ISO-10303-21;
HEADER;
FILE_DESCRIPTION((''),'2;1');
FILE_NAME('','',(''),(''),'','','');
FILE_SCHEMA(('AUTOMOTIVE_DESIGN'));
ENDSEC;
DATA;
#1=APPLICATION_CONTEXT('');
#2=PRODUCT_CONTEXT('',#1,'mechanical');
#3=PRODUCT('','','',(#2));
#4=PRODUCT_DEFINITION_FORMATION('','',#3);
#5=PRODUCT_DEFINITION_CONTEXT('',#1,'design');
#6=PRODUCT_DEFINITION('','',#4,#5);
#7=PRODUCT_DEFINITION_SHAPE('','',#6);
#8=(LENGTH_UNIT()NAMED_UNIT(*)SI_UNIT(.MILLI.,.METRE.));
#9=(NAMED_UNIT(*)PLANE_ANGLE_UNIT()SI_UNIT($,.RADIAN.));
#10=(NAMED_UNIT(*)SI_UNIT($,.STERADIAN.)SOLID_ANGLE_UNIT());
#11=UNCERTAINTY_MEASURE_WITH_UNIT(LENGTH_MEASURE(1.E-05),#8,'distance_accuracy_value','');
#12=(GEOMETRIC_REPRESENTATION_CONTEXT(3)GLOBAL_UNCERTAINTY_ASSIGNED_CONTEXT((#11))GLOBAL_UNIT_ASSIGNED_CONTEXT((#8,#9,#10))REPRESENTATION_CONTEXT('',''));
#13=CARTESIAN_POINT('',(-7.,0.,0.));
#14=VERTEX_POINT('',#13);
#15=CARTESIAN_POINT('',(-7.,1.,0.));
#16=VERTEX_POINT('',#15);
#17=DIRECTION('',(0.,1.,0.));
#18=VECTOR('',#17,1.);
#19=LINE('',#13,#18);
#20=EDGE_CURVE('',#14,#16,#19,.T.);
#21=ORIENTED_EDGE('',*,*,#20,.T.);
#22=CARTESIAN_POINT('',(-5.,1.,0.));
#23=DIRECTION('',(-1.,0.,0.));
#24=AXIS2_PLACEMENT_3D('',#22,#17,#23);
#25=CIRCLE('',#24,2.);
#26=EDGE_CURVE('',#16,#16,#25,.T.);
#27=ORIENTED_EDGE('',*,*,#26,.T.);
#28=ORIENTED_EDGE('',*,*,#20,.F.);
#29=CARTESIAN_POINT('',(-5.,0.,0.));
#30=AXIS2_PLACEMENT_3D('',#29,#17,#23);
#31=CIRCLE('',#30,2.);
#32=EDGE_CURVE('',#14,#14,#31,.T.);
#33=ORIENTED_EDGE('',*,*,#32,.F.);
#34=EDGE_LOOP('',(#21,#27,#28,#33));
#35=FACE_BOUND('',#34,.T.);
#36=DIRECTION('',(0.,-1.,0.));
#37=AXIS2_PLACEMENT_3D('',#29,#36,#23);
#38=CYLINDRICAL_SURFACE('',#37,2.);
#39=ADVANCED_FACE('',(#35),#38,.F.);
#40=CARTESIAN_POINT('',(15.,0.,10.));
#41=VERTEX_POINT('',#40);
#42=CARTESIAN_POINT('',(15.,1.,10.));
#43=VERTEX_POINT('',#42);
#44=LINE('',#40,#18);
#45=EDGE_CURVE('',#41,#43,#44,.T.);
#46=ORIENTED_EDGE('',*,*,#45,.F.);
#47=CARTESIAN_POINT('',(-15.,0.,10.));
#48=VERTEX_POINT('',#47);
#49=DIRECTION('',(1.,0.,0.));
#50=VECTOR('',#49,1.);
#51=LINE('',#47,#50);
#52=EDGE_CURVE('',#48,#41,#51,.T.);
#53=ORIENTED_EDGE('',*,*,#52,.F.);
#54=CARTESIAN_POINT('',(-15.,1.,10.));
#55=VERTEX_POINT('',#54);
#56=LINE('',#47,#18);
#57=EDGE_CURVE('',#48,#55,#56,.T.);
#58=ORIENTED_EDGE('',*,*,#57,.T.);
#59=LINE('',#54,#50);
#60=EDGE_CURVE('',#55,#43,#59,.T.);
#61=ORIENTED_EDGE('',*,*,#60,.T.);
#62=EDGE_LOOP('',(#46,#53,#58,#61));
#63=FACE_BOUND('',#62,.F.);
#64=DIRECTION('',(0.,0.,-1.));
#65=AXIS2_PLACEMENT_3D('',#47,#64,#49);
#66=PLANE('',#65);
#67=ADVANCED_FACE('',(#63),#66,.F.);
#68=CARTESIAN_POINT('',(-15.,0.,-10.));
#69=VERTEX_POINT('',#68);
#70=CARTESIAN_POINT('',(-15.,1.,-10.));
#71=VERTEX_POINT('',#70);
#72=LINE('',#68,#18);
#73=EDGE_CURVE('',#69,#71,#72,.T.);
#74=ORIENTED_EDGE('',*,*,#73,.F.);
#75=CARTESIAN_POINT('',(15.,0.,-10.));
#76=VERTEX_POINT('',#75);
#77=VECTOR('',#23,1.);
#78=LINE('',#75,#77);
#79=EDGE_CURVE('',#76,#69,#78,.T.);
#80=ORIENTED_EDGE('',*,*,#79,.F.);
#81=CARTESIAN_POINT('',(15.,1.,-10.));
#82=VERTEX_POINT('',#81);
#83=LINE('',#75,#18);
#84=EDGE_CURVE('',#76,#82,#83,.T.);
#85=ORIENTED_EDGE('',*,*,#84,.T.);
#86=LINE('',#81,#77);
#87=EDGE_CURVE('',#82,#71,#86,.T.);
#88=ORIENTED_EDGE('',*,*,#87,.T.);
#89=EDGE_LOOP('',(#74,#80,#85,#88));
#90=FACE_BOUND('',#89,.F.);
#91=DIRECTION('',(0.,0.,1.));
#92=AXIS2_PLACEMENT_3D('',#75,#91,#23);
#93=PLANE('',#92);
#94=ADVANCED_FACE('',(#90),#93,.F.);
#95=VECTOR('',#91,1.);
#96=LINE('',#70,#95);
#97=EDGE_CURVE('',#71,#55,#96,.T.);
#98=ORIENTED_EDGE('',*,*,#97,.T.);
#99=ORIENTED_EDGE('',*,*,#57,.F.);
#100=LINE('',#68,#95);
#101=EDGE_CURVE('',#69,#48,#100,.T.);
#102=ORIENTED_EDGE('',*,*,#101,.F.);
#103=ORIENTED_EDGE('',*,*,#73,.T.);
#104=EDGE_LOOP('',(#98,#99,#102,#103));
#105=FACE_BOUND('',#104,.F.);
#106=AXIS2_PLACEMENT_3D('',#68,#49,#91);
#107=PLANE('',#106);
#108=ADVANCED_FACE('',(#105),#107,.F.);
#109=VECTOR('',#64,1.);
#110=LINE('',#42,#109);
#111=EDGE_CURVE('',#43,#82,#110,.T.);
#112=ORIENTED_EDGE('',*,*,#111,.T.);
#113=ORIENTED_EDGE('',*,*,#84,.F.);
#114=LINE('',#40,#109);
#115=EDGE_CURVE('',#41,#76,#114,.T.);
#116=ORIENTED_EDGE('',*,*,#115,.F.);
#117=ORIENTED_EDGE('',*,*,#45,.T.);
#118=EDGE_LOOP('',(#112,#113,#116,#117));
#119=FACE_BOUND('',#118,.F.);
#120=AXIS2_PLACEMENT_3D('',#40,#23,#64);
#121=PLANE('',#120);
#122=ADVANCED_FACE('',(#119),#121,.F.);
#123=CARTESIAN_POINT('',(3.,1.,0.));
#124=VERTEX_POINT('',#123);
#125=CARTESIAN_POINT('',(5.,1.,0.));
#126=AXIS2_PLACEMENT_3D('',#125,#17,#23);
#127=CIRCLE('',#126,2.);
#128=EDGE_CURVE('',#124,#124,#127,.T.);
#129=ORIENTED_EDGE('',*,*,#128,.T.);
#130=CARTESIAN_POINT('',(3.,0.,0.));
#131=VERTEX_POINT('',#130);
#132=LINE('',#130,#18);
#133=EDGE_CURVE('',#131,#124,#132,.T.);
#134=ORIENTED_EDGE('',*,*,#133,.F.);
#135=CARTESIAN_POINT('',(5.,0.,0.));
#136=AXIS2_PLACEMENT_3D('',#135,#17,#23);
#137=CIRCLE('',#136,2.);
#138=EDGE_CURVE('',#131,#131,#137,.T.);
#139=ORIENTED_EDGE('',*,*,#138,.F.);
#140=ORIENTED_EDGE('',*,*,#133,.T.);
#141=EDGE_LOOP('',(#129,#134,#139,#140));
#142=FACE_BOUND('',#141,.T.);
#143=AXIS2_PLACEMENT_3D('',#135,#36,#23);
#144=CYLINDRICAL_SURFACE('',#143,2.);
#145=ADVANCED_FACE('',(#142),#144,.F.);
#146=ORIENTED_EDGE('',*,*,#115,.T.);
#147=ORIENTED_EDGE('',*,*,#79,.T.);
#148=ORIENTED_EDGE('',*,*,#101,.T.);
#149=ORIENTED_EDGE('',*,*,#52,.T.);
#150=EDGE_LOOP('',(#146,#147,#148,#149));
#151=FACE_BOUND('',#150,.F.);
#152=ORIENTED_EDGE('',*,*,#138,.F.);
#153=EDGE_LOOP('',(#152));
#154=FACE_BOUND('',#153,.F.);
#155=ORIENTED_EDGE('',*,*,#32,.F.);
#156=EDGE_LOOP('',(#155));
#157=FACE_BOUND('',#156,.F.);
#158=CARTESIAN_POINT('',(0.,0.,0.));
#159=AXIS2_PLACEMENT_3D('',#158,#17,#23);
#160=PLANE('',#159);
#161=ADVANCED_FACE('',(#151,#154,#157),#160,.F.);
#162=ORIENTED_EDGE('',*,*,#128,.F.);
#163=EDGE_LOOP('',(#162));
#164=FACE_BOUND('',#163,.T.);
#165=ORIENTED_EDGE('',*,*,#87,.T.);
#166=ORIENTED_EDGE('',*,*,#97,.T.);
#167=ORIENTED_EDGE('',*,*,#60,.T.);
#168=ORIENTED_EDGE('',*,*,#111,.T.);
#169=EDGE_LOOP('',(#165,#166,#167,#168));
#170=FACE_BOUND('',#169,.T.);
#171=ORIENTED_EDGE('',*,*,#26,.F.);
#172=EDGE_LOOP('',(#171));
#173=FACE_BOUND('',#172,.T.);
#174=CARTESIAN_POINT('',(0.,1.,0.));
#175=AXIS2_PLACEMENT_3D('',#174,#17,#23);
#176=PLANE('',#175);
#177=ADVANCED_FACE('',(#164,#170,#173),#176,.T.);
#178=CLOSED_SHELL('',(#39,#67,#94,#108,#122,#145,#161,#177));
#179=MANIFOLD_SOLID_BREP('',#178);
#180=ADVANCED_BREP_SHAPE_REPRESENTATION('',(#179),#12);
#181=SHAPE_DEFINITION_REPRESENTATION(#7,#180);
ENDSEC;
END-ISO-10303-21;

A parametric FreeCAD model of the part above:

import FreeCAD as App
import Part
import Sketcher
from FreeCAD import Vector
Q = App.Units.Quantity


def add_polygon(sketch, points):
    """Adds a closed chain of lines whose ends are joined by coincident constraints."""
    first, n = sketch.GeometryCount, len(points)
    for a, b in zip(points, points[1:] + points[:1]):
        sketch.addGeometry(Part.LineSegment(App.Vector(*a, 0), App.Vector(*b, 0)), False)
    for i in range(n):
        sketch.addConstraint(Sketcher.Constraint("Coincident", first + i, 2, first + (i + 1) % n, 1))

doc = App.newDocument("Part")
params = doc.addObject("Spreadsheet::Sheet", "Params")
for row, (alias, value) in enumerate([
    ("sketch1_diameter", "4 mm"),
    ("sketch1_width", "30 mm"),
    ("sketch1_height", "20 mm"),
    ("pad1_length", "1 mm"),
], start=1):
    params.set(f"A{row}", alias)
    params.set(f"B{row}", "=" + value)
    params.setAlias(f"B{row}", alias)

body = doc.addObject("PartDesign::Body", "Body")

sketch1 = body.newObject("Sketcher::SketchObject", "Sketch")
sketch1.AttachmentSupport = (doc.getObject("XZ_Plane"), [""])
sketch1.MapMode = "FlatFace"
add_polygon(sketch1, [(15, 10), (15, -10), (-15, -10), (-15, 10)])
sketch1.addGeometry(Part.Circle(Vector(5, 0, 0), Vector(0, 0, 1), 2), False)
sketch1.addGeometry(Part.Circle(Vector(-5, 0, 0), Vector(0, 0, 1), 2), False)
sketch1.addConstraint([
    Sketcher.Constraint("Vertical", 0),
    Sketcher.Constraint("Horizontal", 1),
    Sketcher.Constraint("Vertical", 2),
    Sketcher.Constraint("Horizontal", 3),
    Sketcher.Constraint("Equal", 4, 5),
    Sketcher.Constraint("Symmetric", 4, 3, 5, 3, -1, 1),
    Sketcher.Constraint("Symmetric", 0, 2, 2, 2, -1, 1),
    Sketcher.Constraint("PointOnObject", 4, 3, -1),
    Sketcher.Constraint("Diameter", 4, Q("4 mm")),
    Sketcher.Constraint("DistanceX", 1, 2, 1, 1, Q("30 mm")),
    Sketcher.Constraint("DistanceY", 0, 2, 0, 1, Q("20 mm")),
    Sketcher.Constraint("DistanceX", 5, 3, 0, 2, Q("20 mm")),
])
sketch1.setExpression("Constraints[12]", "Params.sketch1_diameter")
sketch1.setExpression("Constraints[13]", "Params.sketch1_width")
sketch1.setExpression("Constraints[14]", "Params.sketch1_height")
pad1 = body.newObject("PartDesign::Pad", "Pad")
pad1.Profile = sketch1
pad1.setExpression("Length", "Params.pad1_length")
pad1.Reversed = True

doc.recompute()
